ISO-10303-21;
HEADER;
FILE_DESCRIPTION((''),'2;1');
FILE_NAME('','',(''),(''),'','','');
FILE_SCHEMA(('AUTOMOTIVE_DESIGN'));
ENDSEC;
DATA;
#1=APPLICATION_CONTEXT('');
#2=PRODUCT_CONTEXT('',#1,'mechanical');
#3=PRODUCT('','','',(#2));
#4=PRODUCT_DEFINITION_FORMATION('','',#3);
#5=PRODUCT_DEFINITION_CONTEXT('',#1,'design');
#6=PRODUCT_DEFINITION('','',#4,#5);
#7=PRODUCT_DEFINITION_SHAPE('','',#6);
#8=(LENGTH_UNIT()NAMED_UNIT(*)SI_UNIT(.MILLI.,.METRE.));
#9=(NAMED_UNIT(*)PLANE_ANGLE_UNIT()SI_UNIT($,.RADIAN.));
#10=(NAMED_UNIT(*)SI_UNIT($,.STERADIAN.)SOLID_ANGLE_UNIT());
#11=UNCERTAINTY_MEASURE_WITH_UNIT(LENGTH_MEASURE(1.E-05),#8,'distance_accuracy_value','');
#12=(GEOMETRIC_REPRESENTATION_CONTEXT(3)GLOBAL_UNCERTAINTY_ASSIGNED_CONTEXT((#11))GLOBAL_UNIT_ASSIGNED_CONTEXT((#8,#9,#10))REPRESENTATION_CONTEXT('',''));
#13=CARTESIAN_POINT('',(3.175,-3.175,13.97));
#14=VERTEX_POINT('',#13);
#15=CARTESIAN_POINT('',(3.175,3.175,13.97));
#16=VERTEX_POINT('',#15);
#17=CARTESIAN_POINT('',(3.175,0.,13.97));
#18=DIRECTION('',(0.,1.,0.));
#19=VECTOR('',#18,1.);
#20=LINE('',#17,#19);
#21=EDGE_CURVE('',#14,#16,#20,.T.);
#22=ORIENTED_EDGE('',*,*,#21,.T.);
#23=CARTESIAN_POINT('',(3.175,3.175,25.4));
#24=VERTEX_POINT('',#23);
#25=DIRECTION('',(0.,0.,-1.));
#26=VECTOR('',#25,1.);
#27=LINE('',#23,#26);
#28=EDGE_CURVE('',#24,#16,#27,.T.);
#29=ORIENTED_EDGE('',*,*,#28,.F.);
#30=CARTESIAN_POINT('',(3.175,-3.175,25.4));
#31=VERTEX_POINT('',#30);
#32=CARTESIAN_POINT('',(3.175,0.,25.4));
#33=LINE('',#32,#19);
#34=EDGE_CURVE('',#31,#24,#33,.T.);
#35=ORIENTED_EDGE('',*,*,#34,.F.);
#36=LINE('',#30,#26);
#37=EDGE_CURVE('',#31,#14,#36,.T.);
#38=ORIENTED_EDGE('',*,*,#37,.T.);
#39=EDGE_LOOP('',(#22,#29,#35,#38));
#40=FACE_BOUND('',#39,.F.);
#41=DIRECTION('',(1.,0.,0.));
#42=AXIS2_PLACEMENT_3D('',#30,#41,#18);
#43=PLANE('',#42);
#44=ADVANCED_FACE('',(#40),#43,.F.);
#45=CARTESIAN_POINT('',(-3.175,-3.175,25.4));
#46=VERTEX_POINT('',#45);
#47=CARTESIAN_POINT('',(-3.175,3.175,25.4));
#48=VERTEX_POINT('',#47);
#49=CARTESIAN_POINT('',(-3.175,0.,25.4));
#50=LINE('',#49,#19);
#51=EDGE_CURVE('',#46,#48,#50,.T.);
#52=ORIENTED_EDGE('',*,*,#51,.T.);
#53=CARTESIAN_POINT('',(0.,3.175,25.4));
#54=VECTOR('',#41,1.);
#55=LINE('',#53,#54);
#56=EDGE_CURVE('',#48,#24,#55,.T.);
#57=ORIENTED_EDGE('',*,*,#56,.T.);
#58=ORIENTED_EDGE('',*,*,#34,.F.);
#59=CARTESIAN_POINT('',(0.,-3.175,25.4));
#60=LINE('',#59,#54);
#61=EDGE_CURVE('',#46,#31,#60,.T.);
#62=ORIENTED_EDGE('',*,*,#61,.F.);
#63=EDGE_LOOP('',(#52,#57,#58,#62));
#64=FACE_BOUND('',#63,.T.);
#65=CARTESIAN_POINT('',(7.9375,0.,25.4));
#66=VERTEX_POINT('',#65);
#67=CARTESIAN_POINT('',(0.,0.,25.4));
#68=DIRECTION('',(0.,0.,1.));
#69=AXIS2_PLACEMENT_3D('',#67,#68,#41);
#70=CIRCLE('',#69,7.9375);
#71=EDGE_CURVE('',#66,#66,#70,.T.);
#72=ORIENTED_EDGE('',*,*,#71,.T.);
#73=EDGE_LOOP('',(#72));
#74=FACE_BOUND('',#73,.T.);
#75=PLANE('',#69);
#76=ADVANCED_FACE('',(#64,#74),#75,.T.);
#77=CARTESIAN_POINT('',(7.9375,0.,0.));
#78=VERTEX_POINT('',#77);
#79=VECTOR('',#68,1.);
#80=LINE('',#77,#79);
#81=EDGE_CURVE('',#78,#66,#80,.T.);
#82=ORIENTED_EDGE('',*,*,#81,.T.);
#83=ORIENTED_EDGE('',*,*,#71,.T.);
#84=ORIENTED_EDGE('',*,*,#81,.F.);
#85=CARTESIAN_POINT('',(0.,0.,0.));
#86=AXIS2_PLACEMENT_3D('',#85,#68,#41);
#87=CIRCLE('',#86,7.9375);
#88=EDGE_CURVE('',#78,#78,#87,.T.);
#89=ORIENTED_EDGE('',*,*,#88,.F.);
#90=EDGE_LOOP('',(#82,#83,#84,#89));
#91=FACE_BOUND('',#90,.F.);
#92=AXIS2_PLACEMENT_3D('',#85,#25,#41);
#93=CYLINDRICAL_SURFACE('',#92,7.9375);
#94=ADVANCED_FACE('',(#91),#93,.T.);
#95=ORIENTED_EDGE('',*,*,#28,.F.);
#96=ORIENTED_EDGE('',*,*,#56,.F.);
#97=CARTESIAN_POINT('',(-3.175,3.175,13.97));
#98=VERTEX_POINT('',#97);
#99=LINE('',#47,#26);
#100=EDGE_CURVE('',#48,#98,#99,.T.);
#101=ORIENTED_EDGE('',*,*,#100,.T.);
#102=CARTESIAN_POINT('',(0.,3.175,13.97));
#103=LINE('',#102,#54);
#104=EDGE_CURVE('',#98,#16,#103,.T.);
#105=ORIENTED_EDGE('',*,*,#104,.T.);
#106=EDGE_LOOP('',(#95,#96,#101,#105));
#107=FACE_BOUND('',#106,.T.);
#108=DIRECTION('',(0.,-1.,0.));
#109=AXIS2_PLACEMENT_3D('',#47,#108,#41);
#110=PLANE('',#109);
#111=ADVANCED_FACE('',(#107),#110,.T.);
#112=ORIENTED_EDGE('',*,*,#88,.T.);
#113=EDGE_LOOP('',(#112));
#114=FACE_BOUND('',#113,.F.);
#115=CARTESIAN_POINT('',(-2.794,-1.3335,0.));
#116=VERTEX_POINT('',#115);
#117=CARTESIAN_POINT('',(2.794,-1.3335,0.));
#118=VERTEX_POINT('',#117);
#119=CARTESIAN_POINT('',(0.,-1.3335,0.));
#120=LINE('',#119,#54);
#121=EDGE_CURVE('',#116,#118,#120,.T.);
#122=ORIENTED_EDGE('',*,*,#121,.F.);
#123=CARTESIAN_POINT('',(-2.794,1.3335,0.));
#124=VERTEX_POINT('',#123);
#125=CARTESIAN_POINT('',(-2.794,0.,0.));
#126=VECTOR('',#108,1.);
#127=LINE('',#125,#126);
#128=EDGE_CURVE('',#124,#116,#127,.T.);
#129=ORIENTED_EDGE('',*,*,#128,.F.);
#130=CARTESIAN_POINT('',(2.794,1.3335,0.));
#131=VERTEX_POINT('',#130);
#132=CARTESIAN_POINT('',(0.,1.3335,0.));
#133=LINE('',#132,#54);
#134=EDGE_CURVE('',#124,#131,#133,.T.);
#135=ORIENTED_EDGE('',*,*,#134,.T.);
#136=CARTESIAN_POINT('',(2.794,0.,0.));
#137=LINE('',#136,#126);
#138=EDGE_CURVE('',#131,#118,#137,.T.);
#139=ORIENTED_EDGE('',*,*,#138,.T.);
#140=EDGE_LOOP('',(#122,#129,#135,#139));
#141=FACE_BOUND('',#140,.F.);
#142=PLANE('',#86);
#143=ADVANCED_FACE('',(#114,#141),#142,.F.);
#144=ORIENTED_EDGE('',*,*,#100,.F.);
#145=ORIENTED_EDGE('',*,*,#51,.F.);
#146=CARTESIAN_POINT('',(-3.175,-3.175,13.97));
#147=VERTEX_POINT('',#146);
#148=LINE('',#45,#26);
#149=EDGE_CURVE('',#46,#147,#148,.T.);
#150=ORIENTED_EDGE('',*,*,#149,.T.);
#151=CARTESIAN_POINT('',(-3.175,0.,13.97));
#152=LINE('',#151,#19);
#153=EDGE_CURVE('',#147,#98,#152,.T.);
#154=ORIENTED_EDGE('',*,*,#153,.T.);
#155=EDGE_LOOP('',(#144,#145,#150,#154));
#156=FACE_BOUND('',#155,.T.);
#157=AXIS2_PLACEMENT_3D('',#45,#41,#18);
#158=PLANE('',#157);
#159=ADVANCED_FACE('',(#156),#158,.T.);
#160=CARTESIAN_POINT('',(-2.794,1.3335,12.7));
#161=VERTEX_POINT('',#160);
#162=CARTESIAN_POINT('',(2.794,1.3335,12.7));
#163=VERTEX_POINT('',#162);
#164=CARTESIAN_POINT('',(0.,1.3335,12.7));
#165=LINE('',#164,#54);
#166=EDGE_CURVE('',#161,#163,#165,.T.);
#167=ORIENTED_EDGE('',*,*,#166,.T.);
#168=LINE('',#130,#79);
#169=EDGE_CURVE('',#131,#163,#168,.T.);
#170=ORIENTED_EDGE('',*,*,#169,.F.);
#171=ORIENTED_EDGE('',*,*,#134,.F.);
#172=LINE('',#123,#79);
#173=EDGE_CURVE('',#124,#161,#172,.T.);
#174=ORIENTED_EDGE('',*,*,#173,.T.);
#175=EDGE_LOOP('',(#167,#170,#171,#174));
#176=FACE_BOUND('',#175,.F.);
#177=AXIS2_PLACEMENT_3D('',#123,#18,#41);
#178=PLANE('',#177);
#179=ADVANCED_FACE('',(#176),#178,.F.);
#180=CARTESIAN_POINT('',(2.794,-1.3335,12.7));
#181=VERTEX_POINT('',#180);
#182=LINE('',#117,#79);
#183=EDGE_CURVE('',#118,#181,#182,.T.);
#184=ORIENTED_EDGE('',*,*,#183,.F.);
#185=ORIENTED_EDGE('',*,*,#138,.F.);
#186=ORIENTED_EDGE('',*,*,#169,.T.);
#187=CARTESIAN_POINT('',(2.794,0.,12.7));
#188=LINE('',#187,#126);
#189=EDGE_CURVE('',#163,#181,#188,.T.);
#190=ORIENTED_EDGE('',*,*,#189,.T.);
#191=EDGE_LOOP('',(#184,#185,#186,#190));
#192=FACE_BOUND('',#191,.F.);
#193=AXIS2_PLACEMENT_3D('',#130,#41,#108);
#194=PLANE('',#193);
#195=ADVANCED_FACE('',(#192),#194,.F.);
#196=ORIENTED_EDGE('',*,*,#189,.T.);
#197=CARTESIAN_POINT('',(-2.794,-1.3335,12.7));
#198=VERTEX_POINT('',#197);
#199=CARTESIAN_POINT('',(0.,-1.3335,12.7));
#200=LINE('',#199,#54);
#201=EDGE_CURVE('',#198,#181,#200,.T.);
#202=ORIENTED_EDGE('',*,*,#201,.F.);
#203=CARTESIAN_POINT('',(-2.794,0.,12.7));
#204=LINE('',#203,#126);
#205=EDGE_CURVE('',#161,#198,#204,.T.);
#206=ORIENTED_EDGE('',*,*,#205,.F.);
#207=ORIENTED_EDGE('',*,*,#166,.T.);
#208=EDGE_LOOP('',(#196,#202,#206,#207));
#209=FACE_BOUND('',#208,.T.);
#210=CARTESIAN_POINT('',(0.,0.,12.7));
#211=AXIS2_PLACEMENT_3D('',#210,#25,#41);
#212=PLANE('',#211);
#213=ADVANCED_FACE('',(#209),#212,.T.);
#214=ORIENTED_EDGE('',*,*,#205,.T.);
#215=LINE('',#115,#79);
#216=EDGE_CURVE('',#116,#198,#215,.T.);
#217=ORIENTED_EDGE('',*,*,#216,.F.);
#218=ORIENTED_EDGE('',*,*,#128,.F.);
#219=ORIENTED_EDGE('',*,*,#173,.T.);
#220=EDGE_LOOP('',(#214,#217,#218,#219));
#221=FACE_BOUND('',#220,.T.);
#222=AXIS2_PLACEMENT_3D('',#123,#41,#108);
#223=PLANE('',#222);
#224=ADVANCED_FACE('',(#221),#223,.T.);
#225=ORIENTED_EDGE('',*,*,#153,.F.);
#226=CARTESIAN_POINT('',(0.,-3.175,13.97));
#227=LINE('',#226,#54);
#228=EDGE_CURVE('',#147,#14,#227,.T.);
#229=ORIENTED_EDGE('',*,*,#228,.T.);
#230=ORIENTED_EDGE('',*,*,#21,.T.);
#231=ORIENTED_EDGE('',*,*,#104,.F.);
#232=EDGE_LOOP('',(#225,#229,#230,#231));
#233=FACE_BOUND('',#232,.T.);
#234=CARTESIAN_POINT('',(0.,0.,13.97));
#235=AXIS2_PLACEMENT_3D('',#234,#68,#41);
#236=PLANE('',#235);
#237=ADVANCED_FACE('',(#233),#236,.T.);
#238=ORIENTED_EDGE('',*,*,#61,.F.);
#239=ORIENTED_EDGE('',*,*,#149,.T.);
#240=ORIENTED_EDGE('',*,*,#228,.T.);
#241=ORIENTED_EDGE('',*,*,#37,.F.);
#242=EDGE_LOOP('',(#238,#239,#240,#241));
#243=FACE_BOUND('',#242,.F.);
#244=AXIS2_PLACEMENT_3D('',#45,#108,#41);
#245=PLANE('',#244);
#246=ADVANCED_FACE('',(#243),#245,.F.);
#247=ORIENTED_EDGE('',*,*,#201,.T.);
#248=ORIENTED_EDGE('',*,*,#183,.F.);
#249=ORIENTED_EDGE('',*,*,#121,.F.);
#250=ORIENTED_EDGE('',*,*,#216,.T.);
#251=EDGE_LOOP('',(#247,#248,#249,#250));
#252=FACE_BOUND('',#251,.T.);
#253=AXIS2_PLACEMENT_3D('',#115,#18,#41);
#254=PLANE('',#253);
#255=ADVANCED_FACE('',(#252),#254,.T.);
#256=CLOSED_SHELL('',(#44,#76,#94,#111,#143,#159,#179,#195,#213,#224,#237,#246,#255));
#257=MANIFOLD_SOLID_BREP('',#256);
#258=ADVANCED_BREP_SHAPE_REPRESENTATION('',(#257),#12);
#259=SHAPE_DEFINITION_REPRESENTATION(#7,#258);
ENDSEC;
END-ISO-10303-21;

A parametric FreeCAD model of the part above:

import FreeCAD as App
import Part
import Sketcher
Q = App.Units.Quantity

doc = App.newDocument("Part")
body = doc.addObject("PartDesign::Body", "Body")

# Sketch on XY plane
sketch1 = body.newObject("Sketcher::SketchObject", "Sketch")
sketch1.AttachmentSupport = (doc.getObject("XY_Plane"), [""])
sketch1.MapMode = "FlatFace"
sketch1.addGeometry(Part.Circle(App.Vector(0, 0, 0), App.Vector(0, 0, 1), 8), False)
sketch1.addConstraint(Sketcher.Constraint("Coincident", 0, 3, -1, 1))
sketch1.addConstraint(Sketcher.Constraint("Diameter", 0, Q("0.625 in")))
pad1 = body.newObject("PartDesign::Pad", "Pad")
pad1.Profile = sketch1
pad1.Length = Q("1 in")

# Sketch on XY plane
sketch2 = body.newObject("Sketcher::SketchObject", "Sketch001")
sketch2.AttachmentSupport = (doc.getObject("XY_Plane"), [""])
sketch2.MapMode = "FlatFace"
sketch2.AttachmentOffset = App.Placement(App.Vector(0, 0, 1 * 25.4), App.Rotation())
sketch2.addGeometry(Part.LineSegment(App.Vector(-3, 3, 0), App.Vector(-3, -3, 0)), False)
sketch2.addGeometry(Part.LineSegment(App.Vector(-3, -3, 0), App.Vector(3, -3, 0)), False)
sketch2.addGeometry(Part.LineSegment(App.Vector(3, -3, 0), App.Vector(3, 3, 0)), False)
sketch2.addGeometry(Part.LineSegment(App.Vector(3, 3, 0), App.Vector(-3, 3, 0)), False)
sketch2.addConstraint(Sketcher.Constraint("Coincident", 0, 2, 1, 1))
sketch2.addConstraint(Sketcher.Constraint("Coincident", 1, 2, 2, 1))
sketch2.addConstraint(Sketcher.Constraint("Coincident", 2, 2, 3, 1))
sketch2.addConstraint(Sketcher.Constraint("Coincident", 3, 2, 0, 1))
sketch2.addConstraint(Sketcher.Constraint("Vertical", 0))
sketch2.addConstraint(Sketcher.Constraint("Horizontal", 1))
sketch2.addConstraint(Sketcher.Constraint("Vertical", 2))
sketch2.addConstraint(Sketcher.Constraint("Horizontal", 3))
sketch2.addConstraint(Sketcher.Constraint("Symmetric", 0, 2, 2, 2, -1, 1))
sketch2.addConstraint(Sketcher.Constraint("Equal", 3, 0))
sketch2.addConstraint(Sketcher.Constraint("DistanceX", 1, 1, 1, 2, Q("0.25 in")))
pocket1 = body.newObject("PartDesign::Pocket", "Pocket")
pocket1.Profile = sketch2
pocket1.Length = Q("0.45 in")

# Sketch on XY plane
sketch3 = body.newObject("Sketcher::SketchObject", "Sketch002")
sketch3.AttachmentSupport = (doc.getObject("XY_Plane"), [""])
sketch3.MapMode = "FlatFace"
sketch3.addGeometry(Part.LineSegment(App.Vector(-2.8, -1.3, 0), App.Vector(-2.8, 1.3, 0)), False)
sketch3.addGeometry(Part.LineSegment(App.Vector(-2.8, 1.3, 0), App.Vector(2.8, 1.3, 0)), False)
sketch3.addGeometry(Part.LineSegment(App.Vector(2.8, 1.3, 0), App.Vector(2.8, -1.3, 0)), False)
sketch3.addGeometry(Part.LineSegment(App.Vector(2.8, -1.3, 0), App.Vector(-2.8, -1.3, 0)), False)
sketch3.addConstraint(Sketcher.Constraint("Coincident", 0, 2, 1, 1))
sketch3.addConstraint(Sketcher.Constraint("Coincident", 1, 2, 2, 1))
sketch3.addConstraint(Sketcher.Constraint("Coincident", 2, 2, 3, 1))
sketch3.addConstraint(Sketcher.Constraint("Coincident", 3, 2, 0, 1))
sketch3.addConstraint(Sketcher.Constraint("Vertical", 0))
sketch3.addConstraint(Sketcher.Constraint("Horizontal", 1))
sketch3.addConstraint(Sketcher.Constraint("Vertical", 2))
sketch3.addConstraint(Sketcher.Constraint("Horizontal", 3))
sketch3.addConstraint(Sketcher.Constraint("Symmetric", 0, 2, 2, 2, -1, 1))
sketch3.addConstraint(Sketcher.Constraint("DistanceX", 1, 1, 1, 2, Q("0.22 in")))
sketch3.addConstraint(Sketcher.Constraint("DistanceY", 0, 1, 0, 2, Q("0.105 in")))
pocket2 = body.newObject("PartDesign::Pocket", "Pocket001")
pocket2.Profile = sketch3
pocket2.Length = Q("0.5 in")
pocket2.Reversed = True

doc.recompute()
